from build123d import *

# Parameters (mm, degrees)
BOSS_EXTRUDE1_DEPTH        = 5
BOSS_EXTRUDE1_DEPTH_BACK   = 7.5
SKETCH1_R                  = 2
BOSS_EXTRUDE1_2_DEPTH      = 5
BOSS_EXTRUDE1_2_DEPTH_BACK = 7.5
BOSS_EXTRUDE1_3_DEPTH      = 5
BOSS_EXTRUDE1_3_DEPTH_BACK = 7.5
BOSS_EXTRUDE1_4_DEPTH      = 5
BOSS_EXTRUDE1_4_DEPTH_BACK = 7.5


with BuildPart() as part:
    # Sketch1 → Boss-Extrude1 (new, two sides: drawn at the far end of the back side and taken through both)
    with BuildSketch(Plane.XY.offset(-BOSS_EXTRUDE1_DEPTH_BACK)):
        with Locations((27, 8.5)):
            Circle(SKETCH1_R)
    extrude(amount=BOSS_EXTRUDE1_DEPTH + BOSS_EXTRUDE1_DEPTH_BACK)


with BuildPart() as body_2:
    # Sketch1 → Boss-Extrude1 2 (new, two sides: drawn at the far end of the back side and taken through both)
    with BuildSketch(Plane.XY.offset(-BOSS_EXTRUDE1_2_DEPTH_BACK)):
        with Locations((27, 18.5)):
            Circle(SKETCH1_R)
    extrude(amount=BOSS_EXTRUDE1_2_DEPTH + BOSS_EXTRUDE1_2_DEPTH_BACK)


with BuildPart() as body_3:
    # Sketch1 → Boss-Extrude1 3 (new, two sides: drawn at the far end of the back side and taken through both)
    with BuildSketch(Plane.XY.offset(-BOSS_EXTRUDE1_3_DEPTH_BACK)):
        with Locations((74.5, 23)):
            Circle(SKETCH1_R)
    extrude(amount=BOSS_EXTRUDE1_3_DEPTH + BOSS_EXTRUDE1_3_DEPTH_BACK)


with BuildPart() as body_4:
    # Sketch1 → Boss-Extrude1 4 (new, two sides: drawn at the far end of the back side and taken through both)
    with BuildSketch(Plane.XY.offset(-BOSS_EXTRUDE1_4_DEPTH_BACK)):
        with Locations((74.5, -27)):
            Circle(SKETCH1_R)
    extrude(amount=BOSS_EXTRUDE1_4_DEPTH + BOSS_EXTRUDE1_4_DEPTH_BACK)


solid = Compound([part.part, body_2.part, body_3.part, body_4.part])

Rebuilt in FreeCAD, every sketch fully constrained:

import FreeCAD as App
import Part
import Sketcher

V = App.Vector

doc = App.newDocument("Part")
body = doc.addObject("PartDesign::Body", "Body")

sketch1 = body.newObject("Sketcher::SketchObject", "Sketch")
sketch1.AttachmentSupport = (doc.getObject("XY_Plane"), [""])
sketch1.MapMode = "FlatFace"
sketch1.addGeometry(Part.Circle(V(27, 8.5, 0), V(0, 0, 1), 2), False)
sketch1.addConstraint([
    Sketcher.Constraint("Diameter", 0, 4.0),
    Sketcher.Constraint("DistanceX", -1, 1, 0, 3, 27.0),
    Sketcher.Constraint("DistanceY", -1, 1, 0, 3, 8.5),
])
pad1 = body.newObject("PartDesign::Pad", "Pad")
pad1.Profile = sketch1
pad1.Type = "TwoLengths"
pad1.Length = 5
pad1.Length2 = 7.5
body2 = doc.addObject("PartDesign::Body", "Body001")

sketch2 = body2.newObject("Sketcher::SketchObject", "Sketch001")
sketch2.AttachmentSupport = (doc.getObject("XY_Plane001"), [""])
sketch2.MapMode = "FlatFace"
sketch2.addGeometry(Part.Circle(V(27, 18.5, 0), V(0, 0, 1), 2), False)
sketch2.addConstraint([
    Sketcher.Constraint("Diameter", 0, 4.0),
    Sketcher.Constraint("DistanceX", -1, 1, 0, 3, 27.0),
    Sketcher.Constraint("DistanceY", -1, 1, 0, 3, 18.5),
])
pad2 = body2.newObject("PartDesign::Pad", "Pad001")
pad2.Profile = sketch2
pad2.Type = "TwoLengths"
pad2.Length = 5
pad2.Length2 = 7.5
body3 = doc.addObject("PartDesign::Body", "Body002")

sketch3 = body3.newObject("Sketcher::SketchObject", "Sketch002")
sketch3.AttachmentSupport = (doc.getObject("XY_Plane002"), [""])
sketch3.MapMode = "FlatFace"
sketch3.addGeometry(Part.Circle(V(74.5, 23, 0), V(0, 0, 1), 2), False)
sketch3.addConstraint([
    Sketcher.Constraint("Diameter", 0, 4.0),
    Sketcher.Constraint("DistanceY", -1, 1, 0, 3, 23.0),
    Sketcher.Constraint("DistanceX", -1, 1, 0, 3, 74.5),
])
pad3 = body3.newObject("PartDesign::Pad", "Pad002")
pad3.Profile = sketch3
pad3.Type = "TwoLengths"
pad3.Length = 5
pad3.Length2 = 7.5
body4 = doc.addObject("PartDesign::Body", "Body003")

sketch4 = body4.newObject("Sketcher::SketchObject", "Sketch003")
sketch4.AttachmentSupport = (doc.getObject("XY_Plane003"), [""])
sketch4.MapMode = "FlatFace"
sketch4.addGeometry(Part.Circle(V(74.5, -27, 0), V(0, 0, 1), 2), False)
sketch4.addConstraint([
    Sketcher.Constraint("Diameter", 0, 4.0),
    Sketcher.Constraint("DistanceY", 0, 3, -1, 1, 27.0),
    Sketcher.Constraint("DistanceX", -1, 1, 0, 3, 74.5),
])
pad4 = body4.newObject("PartDesign::Pad", "Pad003")
pad4.Profile = sketch4
pad4.Type = "TwoLengths"
pad4.Length = 5
pad4.Length2 = 7.5

doc.recompute()
